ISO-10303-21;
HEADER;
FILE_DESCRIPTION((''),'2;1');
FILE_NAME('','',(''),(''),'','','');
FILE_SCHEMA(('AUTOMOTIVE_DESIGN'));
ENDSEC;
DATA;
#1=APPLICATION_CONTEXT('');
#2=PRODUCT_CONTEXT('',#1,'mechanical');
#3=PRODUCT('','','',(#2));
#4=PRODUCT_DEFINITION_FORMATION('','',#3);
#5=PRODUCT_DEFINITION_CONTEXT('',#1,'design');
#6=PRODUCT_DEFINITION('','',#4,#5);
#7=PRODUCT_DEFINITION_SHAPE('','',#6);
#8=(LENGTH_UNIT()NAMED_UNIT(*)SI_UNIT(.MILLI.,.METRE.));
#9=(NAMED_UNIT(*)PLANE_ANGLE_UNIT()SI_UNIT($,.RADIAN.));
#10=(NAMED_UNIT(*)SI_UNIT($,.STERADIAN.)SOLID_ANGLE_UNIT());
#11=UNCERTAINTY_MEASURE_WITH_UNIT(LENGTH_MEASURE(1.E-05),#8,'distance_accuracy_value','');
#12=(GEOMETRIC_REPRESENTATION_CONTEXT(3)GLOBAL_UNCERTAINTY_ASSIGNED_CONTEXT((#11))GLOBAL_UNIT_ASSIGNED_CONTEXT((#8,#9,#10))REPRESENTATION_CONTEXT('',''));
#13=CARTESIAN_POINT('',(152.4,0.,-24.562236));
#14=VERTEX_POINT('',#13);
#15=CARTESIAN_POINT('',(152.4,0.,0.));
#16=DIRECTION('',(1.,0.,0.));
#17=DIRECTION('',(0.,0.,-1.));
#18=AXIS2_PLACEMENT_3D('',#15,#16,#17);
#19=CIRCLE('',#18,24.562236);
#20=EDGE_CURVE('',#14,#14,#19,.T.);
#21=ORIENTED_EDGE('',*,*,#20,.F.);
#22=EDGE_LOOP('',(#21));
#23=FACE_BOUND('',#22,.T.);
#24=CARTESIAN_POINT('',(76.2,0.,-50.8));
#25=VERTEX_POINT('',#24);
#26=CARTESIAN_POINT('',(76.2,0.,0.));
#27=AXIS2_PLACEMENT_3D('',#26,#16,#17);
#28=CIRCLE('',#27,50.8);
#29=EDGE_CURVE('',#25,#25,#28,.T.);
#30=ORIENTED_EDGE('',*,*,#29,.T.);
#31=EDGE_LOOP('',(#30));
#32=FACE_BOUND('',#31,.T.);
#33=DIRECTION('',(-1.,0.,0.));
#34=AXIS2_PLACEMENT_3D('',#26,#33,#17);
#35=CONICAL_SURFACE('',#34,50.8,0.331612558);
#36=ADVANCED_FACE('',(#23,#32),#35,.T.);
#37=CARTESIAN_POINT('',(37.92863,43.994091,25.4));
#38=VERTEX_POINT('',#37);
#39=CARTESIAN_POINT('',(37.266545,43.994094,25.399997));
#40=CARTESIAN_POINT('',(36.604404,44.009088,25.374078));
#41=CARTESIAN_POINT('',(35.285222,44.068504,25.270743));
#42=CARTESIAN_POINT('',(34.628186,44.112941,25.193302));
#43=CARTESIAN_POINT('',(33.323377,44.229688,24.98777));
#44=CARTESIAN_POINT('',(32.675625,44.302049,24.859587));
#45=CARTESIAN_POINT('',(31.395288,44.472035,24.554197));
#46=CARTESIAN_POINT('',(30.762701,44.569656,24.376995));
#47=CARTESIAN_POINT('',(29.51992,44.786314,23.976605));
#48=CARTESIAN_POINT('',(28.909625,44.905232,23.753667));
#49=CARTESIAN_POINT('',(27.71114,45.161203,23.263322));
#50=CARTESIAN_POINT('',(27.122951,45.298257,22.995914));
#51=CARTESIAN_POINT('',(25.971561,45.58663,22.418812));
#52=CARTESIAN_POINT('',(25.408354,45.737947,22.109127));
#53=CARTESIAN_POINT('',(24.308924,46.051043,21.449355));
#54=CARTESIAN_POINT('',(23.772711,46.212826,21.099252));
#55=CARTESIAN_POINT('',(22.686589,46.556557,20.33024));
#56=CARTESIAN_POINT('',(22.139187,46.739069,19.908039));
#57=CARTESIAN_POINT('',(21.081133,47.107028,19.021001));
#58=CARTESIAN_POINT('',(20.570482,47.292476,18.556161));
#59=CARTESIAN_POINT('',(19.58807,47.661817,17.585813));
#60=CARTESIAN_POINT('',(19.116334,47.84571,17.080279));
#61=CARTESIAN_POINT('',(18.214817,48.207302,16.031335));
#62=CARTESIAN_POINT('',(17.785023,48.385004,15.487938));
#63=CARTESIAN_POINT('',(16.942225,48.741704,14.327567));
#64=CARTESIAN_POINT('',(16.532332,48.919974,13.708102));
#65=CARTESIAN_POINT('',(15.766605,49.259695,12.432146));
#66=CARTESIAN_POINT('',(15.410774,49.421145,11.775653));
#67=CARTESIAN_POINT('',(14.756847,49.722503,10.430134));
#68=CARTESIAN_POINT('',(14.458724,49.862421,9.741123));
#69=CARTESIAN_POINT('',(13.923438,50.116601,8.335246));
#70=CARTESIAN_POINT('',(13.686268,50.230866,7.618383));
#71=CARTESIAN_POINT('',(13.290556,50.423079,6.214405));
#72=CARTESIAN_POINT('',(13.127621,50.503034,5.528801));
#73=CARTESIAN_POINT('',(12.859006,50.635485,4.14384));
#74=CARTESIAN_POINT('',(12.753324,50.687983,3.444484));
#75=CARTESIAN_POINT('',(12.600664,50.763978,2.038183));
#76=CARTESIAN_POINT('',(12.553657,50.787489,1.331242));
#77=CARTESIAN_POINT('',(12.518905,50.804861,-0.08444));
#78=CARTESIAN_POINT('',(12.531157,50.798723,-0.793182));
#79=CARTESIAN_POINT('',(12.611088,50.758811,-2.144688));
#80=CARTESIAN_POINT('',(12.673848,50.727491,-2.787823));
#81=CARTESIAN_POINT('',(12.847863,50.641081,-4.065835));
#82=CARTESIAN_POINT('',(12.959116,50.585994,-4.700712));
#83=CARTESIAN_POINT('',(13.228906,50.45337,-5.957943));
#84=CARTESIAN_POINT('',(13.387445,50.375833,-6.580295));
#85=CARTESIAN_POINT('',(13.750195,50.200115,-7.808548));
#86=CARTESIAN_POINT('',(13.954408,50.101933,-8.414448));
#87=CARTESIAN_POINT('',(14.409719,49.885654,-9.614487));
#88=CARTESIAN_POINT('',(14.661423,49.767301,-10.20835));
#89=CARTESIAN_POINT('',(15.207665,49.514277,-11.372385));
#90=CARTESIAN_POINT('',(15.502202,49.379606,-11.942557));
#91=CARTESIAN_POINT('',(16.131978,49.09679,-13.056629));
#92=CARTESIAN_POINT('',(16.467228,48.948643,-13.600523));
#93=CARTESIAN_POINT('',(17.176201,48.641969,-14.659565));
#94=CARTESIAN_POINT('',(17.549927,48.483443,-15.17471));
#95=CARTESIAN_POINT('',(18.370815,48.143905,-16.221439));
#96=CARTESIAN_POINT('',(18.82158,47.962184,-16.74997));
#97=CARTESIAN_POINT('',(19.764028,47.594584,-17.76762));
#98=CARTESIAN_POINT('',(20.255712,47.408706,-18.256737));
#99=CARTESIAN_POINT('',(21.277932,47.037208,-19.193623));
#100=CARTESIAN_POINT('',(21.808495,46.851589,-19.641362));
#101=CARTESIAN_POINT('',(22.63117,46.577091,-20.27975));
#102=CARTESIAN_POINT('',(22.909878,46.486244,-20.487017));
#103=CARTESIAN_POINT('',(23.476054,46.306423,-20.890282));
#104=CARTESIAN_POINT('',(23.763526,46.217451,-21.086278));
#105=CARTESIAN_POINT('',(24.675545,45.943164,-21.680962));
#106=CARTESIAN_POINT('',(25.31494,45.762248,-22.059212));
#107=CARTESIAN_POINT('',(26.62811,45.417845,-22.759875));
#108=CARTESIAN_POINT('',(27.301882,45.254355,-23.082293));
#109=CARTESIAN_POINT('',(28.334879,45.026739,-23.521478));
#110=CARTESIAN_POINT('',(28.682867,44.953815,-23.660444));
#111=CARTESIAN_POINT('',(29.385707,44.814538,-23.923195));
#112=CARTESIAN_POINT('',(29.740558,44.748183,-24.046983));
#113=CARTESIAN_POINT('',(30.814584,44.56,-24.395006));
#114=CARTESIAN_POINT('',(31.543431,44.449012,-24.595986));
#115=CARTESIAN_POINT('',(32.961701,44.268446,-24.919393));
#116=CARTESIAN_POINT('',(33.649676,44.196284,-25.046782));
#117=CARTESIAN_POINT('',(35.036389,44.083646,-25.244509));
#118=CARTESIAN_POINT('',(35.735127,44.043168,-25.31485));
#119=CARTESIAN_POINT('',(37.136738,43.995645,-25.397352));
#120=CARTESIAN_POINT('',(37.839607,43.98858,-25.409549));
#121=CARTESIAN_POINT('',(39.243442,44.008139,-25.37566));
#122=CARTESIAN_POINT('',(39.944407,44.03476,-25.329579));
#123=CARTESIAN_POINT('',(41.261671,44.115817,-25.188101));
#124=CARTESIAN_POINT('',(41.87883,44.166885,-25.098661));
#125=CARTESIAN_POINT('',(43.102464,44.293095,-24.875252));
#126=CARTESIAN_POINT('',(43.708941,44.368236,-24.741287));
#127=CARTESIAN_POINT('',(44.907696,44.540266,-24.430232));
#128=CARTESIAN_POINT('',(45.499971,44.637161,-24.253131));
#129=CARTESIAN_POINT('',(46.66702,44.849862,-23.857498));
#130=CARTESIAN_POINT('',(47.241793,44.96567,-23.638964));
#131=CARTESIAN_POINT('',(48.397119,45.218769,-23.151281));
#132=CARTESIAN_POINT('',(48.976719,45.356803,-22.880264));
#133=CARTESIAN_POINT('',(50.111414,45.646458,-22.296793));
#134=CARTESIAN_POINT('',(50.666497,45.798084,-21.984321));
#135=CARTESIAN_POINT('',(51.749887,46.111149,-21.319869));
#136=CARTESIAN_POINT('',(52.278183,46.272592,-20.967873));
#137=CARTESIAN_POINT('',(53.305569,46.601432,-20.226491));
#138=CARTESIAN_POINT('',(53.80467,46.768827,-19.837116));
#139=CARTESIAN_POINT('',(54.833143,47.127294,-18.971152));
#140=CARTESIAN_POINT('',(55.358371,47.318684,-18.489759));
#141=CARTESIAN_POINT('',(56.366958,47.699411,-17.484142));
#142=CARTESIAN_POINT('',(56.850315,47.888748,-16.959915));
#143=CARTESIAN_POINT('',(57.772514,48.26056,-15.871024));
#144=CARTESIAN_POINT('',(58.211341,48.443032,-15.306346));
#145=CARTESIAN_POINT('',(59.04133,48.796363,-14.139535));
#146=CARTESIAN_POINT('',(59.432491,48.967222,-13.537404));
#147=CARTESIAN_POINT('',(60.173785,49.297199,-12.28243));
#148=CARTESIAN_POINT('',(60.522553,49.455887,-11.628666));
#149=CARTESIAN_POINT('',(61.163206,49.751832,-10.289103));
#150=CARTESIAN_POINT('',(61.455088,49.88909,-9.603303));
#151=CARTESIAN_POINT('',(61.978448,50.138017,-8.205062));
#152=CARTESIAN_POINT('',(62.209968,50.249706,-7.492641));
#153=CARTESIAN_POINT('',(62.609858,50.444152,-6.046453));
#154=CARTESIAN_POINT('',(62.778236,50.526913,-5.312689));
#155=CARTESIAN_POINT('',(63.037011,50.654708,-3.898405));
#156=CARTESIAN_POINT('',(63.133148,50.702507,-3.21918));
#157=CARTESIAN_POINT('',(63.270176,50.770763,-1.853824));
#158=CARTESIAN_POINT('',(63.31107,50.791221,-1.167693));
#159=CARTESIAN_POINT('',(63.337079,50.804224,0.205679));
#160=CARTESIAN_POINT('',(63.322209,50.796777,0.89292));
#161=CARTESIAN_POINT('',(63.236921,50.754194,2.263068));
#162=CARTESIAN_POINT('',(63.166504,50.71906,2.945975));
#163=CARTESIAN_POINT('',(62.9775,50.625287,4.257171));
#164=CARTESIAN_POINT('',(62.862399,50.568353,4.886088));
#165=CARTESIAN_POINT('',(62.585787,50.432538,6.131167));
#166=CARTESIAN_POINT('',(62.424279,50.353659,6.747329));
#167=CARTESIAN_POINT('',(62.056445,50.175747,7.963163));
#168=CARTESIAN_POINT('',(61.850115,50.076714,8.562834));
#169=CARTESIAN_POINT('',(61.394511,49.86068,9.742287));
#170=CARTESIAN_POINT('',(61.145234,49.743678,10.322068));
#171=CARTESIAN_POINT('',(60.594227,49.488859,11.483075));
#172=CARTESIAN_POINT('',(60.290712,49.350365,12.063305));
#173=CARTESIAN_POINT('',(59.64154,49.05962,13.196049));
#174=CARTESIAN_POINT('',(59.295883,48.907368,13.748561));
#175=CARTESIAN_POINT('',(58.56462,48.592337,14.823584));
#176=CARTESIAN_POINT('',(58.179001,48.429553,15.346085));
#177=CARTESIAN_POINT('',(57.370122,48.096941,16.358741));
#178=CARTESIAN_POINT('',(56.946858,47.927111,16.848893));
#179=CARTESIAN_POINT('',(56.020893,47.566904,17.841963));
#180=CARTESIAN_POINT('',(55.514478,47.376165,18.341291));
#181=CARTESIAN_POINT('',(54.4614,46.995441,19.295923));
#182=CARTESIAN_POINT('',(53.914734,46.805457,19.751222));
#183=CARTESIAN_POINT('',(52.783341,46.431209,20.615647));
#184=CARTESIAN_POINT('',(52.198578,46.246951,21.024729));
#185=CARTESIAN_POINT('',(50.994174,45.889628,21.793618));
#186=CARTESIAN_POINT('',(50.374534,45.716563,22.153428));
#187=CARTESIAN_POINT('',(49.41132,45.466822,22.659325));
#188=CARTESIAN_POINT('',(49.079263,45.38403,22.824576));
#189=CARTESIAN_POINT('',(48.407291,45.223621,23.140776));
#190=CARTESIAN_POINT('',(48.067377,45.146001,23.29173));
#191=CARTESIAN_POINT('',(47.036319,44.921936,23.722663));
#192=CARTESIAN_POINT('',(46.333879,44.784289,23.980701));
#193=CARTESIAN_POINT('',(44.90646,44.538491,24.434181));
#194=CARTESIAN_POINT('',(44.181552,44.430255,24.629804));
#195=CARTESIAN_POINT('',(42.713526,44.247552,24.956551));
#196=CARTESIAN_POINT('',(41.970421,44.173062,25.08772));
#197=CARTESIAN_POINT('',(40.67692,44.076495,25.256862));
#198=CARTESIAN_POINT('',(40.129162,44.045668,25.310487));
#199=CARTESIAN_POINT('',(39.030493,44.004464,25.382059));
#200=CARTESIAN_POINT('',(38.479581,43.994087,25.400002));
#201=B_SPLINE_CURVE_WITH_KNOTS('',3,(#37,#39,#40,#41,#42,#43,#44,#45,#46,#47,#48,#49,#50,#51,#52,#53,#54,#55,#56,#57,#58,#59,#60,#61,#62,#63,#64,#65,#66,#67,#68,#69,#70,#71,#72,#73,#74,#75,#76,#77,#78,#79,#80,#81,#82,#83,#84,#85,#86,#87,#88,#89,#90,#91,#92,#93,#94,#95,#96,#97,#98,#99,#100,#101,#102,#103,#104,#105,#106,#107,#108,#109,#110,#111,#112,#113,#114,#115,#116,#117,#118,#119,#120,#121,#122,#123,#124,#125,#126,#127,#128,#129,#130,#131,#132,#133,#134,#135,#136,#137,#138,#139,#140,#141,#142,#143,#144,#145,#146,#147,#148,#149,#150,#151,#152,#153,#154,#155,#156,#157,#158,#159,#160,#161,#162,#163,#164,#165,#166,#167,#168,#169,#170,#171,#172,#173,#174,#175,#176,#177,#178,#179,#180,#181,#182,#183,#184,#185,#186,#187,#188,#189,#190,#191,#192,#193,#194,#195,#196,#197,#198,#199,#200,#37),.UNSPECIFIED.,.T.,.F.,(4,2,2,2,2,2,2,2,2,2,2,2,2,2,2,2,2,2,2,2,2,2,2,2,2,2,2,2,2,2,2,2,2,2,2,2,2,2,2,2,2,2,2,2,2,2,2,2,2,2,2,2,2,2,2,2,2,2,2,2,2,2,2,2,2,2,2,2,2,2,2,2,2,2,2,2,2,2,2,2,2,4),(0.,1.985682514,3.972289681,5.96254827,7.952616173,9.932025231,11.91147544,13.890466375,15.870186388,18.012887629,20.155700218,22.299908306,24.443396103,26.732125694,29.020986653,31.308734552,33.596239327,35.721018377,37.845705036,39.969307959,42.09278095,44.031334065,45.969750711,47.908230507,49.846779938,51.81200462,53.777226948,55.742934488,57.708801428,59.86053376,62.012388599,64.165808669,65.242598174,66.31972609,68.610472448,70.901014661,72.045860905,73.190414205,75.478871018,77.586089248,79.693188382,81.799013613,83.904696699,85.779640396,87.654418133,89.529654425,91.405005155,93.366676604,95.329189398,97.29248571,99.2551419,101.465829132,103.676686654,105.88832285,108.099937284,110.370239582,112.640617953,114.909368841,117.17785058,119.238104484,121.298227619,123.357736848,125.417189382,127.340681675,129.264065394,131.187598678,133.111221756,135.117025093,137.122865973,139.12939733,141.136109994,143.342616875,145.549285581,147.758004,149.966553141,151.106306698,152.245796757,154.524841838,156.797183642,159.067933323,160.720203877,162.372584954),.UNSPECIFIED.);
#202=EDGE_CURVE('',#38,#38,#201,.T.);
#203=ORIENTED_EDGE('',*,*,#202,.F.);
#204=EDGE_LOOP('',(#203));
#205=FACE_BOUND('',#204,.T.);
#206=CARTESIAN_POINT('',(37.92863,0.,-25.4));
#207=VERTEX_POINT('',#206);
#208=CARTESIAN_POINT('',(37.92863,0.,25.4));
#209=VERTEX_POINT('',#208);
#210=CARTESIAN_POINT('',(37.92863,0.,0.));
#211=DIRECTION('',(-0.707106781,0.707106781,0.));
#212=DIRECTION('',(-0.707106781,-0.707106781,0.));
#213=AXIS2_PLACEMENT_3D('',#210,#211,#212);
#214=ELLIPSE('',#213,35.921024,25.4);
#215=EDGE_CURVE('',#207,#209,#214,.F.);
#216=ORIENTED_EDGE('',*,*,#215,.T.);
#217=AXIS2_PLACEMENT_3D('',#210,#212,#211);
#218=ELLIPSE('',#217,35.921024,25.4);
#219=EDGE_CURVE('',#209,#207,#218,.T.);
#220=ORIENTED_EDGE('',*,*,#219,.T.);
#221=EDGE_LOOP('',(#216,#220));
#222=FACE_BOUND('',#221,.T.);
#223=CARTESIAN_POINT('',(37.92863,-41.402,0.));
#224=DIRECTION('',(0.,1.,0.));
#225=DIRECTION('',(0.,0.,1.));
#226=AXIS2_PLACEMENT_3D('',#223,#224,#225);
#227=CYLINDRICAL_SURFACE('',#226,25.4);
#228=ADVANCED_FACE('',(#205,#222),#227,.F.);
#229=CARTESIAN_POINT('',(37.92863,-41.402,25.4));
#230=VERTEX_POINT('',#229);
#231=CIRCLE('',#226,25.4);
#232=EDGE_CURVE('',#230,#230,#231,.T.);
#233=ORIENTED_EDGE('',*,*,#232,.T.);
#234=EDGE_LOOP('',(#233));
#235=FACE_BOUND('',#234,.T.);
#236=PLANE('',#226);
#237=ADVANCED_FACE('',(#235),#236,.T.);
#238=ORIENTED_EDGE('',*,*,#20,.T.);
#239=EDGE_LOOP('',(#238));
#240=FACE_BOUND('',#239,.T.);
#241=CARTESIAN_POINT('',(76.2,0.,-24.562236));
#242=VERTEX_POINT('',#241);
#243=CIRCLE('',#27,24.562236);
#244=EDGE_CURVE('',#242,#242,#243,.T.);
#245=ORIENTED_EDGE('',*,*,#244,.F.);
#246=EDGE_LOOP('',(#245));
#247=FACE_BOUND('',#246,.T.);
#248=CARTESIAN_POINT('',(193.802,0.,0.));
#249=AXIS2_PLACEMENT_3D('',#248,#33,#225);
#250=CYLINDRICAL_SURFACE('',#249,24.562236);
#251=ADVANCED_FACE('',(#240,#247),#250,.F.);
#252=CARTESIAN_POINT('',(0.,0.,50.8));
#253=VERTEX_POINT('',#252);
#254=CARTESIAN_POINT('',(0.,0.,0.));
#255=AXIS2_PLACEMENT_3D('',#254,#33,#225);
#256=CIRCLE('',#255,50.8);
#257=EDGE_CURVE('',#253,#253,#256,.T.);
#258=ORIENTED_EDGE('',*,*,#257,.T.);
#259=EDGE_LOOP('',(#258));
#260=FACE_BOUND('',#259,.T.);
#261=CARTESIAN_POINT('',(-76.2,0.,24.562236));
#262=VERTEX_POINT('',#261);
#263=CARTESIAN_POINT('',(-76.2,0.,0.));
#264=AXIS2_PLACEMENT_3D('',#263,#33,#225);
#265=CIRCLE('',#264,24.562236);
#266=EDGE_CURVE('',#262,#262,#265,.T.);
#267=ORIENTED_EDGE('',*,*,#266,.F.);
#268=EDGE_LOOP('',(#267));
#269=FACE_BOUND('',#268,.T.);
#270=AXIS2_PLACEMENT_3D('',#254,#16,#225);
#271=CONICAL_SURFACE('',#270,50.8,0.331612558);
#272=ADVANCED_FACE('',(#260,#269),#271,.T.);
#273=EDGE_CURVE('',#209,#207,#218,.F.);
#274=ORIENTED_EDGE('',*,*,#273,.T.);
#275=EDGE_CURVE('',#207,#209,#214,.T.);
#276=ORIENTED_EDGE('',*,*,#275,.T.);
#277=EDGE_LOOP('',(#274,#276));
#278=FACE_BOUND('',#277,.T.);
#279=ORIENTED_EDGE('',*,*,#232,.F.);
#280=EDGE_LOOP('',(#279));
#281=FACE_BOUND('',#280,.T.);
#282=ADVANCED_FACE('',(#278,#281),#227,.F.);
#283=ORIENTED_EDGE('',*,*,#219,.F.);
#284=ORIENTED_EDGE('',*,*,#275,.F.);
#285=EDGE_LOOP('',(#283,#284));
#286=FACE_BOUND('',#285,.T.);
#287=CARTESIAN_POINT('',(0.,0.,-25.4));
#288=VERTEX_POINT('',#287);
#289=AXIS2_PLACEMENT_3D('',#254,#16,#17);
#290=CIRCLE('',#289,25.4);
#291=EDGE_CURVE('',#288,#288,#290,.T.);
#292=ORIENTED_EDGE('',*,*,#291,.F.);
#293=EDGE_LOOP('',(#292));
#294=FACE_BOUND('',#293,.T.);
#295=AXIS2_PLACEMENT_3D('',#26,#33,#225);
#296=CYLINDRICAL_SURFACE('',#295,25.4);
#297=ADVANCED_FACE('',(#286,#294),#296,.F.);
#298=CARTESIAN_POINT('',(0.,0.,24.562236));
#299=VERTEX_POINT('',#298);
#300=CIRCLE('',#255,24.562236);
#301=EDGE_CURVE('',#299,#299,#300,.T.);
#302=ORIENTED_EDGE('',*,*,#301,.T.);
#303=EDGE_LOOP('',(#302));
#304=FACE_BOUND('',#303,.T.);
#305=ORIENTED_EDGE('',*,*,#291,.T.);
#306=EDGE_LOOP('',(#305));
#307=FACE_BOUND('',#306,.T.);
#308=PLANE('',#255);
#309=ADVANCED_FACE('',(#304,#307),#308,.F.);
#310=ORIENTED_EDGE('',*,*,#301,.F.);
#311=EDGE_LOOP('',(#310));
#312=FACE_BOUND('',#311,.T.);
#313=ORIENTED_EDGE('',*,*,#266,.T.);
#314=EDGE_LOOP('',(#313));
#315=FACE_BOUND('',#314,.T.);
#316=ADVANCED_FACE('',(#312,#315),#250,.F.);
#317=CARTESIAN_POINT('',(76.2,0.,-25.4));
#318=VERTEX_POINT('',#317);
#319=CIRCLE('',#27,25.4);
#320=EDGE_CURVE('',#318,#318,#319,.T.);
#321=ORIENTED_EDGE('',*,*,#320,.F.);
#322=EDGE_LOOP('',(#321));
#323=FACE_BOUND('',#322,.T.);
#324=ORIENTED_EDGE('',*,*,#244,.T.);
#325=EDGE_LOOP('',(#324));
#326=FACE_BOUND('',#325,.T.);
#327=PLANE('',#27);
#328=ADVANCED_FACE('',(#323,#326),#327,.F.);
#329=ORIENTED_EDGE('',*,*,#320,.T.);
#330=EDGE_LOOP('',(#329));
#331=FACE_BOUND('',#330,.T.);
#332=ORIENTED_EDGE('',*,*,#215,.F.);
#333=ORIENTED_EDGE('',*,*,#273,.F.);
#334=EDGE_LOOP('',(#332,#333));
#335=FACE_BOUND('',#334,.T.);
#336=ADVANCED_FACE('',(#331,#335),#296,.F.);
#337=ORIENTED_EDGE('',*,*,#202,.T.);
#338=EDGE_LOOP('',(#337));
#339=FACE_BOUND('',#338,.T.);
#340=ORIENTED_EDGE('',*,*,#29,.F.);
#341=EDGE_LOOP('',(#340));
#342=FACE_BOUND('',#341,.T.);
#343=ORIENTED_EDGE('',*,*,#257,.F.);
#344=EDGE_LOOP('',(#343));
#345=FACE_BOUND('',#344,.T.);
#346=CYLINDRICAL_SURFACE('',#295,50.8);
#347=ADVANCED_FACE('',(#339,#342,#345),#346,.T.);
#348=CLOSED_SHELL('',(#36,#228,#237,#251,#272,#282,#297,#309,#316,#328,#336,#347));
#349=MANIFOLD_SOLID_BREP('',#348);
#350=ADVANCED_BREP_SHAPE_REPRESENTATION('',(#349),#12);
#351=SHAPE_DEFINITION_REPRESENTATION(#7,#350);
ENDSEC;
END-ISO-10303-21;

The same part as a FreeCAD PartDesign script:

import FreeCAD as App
import Part
import Sketcher

V = App.Vector
Q = App.Units.Quantity

doc = App.newDocument("Part")
body = doc.addObject("PartDesign::Body", "Body")

# Sketch on YZ plane
sketch1 = body.newObject("Sketcher::SketchObject", "Sketch")
sketch1.AttachmentSupport = (doc.getObject("YZ_Plane"), [""])
sketch1.MapMode = "FlatFace"
sketch1.addGeometry(Part.Circle(V(0, 0, 0), V(0, 0, 1), 51), False)
sketch1.addGeometry(Part.Circle(V(0, 0, 0), V(0, 0, 1), 25), False)
sketch1.addConstraint(Sketcher.Constraint("Coincident", 0, 3, -1, 1))
sketch1.addConstraint(Sketcher.Constraint("Coincident", 1, 3, -1, 1))
sketch1.addConstraint(Sketcher.Constraint("Diameter", 0, Q("4 in")))
sketch1.addConstraint(Sketcher.Constraint("Diameter", 1, Q("2 in")))
pad1 = body.newObject("PartDesign::Pad", "Pad")
pad1.Profile = sketch1
pad1.Length = Q("3 in")

# Sketch on YZ plane
sketch2 = body.newObject("Sketcher::SketchObject", "Sketch001")
sketch2.AttachmentSupport = (doc.getObject("YZ_Plane"), [""])
sketch2.MapMode = "FlatFace"
sketch2.addGeometry(Part.Circle(V(0, 0, 0), V(0, 0, 1), 51), False)
sketch2.addConstraint(Sketcher.Constraint("Coincident", 0, 3, -1, 1))
sketch2.addConstraint(Sketcher.Constraint("Diameter", 0, Q("4 in")))
pad2 = body.newObject("PartDesign::Pad", "Pad001")
pad2.Profile = sketch2
pad2.Length = Q("3 in")
pad2.Reversed = True
pad2.TaperAngle = -19

# Sketch on YZ plane
sketch3 = body.newObject("Sketcher::SketchObject", "Sketch002")
sketch3.AttachmentSupport = (doc.getObject("YZ_Plane"), [""])
sketch3.MapMode = "FlatFace"
sketch3.AttachmentOffset = App.Placement(V(0, 0, 3 * 25.4), App.Rotation())
sketch3.addGeometry(Part.Circle(V(0, 0, 0), V(0, 0, 1), 51), False)
sketch3.addConstraint(Sketcher.Constraint("Coincident", 0, 3, -1, 1))
sketch3.addConstraint(Sketcher.Constraint("Diameter", 0, Q("4 in")))
pad3 = body.newObject("PartDesign::Pad", "Pad002")
pad3.Profile = sketch3
pad3.Length = Q("3 in")
pad3.TaperAngle = -19

# Sketch on YZ plane
sketch4 = body.newObject("Sketcher::SketchObject", "Sketch003")
sketch4.AttachmentSupport = (doc.getObject("YZ_Plane"), [""])
sketch4.MapMode = "FlatFace"
sketch4.AttachmentOffset = App.Placement(V(0, 0, -3 * 25.4), App.Rotation())
sketch4.addGeometry(Part.Circle(V(0, 0, 0), V(0, 0, 1), 25), False)
sketch4.addConstraint(Sketcher.Constraint("Coincident", 0, 3, -1, 1))
sketch4.addConstraint(Sketcher.Constraint("Diameter", 0, 49.124472))
pocket1 = body.newObject("PartDesign::Pocket", "Pocket")
pocket1.Profile = sketch4
pocket1.Length = Q("10.63 in")
pocket1.Reversed = True

# Sketch on XZ plane
sketch5 = body.newObject("Sketcher::SketchObject", "Sketch004")
sketch5.AttachmentSupport = (doc.getObject("XZ_Plane"), [""])
sketch5.MapMode = "FlatFace"
sketch5.AttachmentOffset = App.Placement(V(0, 0, -10 * 25.4), App.Rotation())
sketch5.addGeometry(Part.Circle(V(38, 0, 0), V(0, 0, 1), 25), False)
sketch5.addConstraint(Sketcher.Constraint("PointOnObject", 0, 3, -1))
sketch5.addConstraint(Sketcher.Constraint("Diameter", 0, Q("2 in")))
sketch5.addConstraint(Sketcher.Constraint("DistanceX", -1, 1, 0, 3, 37.92863))
pocket2 = body.newObject("PartDesign::Pocket", "Pocket001")
pocket2.Profile = sketch5
pocket2.Length = Q("11.63 in")
pocket2.Reversed = True

doc.recompute()
